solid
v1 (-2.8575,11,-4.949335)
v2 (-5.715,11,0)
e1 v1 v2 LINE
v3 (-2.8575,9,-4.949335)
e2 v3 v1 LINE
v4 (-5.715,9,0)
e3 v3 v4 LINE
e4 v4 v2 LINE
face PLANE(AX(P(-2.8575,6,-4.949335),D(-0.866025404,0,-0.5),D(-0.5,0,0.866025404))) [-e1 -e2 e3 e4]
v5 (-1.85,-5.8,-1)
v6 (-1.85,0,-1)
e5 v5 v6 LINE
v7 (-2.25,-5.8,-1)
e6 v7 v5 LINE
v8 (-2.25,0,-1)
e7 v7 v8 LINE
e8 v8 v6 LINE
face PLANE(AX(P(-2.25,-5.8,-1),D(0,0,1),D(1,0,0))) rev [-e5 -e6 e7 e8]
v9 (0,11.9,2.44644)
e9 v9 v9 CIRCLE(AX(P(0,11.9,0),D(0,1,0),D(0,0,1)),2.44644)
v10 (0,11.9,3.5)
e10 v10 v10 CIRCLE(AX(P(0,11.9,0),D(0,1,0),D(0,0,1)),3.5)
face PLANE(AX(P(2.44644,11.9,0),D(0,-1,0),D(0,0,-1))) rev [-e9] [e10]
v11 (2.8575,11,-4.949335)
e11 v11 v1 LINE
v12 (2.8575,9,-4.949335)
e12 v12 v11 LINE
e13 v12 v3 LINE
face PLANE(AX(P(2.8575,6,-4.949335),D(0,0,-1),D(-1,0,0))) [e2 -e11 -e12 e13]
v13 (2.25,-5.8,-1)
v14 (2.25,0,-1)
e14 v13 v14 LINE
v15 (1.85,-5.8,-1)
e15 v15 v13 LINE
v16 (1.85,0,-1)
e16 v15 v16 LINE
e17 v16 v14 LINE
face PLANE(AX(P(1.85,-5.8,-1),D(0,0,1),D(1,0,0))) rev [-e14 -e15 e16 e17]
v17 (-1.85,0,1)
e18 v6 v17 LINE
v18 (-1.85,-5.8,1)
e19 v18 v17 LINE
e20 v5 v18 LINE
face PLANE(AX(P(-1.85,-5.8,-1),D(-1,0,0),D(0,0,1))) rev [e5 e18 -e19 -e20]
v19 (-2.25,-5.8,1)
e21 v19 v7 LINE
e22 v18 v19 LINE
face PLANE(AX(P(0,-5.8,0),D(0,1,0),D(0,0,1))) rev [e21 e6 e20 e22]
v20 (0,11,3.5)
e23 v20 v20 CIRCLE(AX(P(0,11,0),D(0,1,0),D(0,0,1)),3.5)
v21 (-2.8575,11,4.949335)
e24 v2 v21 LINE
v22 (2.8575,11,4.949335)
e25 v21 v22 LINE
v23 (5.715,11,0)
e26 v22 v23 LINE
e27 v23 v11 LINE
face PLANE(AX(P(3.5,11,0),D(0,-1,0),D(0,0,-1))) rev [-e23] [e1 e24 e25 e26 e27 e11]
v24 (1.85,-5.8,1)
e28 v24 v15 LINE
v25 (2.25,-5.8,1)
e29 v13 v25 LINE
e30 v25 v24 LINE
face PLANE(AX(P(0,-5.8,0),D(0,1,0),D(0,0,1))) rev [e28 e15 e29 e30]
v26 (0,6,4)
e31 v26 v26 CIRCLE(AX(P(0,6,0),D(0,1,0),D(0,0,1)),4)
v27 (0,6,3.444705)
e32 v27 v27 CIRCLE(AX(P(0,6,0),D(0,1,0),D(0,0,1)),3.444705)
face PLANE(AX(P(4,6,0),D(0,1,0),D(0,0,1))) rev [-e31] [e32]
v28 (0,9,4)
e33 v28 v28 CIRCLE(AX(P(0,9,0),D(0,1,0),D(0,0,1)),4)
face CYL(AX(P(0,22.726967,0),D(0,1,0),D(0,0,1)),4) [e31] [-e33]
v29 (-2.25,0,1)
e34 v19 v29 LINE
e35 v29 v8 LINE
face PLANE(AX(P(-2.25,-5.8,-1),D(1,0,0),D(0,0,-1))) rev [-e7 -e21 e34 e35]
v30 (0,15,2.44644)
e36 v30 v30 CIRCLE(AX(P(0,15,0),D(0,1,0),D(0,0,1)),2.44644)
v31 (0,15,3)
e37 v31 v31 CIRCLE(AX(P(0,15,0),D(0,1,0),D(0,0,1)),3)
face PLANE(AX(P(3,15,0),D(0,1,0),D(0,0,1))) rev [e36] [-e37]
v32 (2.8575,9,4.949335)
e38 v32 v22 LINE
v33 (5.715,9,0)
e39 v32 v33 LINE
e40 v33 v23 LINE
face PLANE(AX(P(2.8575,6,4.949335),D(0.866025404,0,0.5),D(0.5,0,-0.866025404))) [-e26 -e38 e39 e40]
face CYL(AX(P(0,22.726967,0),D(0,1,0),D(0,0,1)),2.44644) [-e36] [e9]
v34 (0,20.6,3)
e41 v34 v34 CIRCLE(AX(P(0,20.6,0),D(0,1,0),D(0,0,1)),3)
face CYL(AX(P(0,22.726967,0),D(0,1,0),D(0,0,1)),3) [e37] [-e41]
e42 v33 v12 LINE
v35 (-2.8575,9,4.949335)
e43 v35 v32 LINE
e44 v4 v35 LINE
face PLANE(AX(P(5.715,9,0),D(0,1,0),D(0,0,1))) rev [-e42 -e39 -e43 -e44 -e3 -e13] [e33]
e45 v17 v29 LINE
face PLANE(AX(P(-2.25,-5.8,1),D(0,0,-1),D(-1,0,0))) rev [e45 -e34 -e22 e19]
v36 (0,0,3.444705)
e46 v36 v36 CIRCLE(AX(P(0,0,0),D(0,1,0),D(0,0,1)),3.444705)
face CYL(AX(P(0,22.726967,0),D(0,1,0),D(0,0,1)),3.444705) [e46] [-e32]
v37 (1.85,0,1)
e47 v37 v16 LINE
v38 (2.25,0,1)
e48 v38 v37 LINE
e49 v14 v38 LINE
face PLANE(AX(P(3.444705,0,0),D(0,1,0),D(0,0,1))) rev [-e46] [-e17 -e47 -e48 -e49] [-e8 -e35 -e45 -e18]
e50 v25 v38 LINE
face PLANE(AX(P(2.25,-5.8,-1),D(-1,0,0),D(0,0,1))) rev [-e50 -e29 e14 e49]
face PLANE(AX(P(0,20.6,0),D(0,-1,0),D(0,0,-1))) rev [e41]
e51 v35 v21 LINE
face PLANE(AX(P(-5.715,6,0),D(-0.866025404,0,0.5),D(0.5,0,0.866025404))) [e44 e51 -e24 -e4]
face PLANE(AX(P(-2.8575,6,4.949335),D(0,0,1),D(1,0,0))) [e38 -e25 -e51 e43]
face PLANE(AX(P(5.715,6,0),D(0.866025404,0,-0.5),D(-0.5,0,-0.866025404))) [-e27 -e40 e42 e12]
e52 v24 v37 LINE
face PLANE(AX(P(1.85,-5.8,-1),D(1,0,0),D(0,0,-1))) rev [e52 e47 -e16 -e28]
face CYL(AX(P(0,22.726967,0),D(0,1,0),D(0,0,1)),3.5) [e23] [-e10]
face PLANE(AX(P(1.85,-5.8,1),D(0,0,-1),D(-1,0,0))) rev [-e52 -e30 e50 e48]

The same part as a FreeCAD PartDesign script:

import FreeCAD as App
import Part
import Sketcher
Q = App.Units.Quantity

doc = App.newDocument("Part")
params = doc.addObject("Spreadsheet::Sheet", "Params")
for row, (alias, value) in enumerate([
    ("sketch1_width", "3 mm"),
    ("sketch1_height", "6 mm"),
    ("sketch1_height2", "2 mm"),
    ("sketch1_height3", "20.6 mm"),
    ("sketch1_height4", "0.9 mm"),
    ("revolution_angle", "360 deg"),
    ("pocket1_length", "5 mm"),
    ("sketch3_height", "2 mm"),
    ("sketch3_width", "0.4 mm"),
    ("pad1_length", "5.8 mm"),
], start=1):
    params.set(f"A{row}", alias)
    params.set(f"B{row}", "=" + value)
    params.setAlias(f"B{row}", alias)

body = doc.addObject("PartDesign::Body", "Body")

sketch1 = doc.addObject("Sketcher::SketchObject", "Sketch")
body.addObject(sketch1)
sketch1.AttachmentSupport = (doc.XY_Plane, [""])
sketch1.MapMode = "FlatFace"
sketch1.addGeometry([
    Part.LineSegment(App.Vector(3, 20.6, 0), App.Vector(0, 20.6, 0)),
    Part.LineSegment(App.Vector(0, 20.6, 0), App.Vector(0, 0, 0)),
    Part.LineSegment(App.Vector(0, 0, 0), App.Vector(3.4, 0, 0)),
    Part.LineSegment(App.Vector(3.4, 0, 0), App.Vector(3.4, 6, 0)),
    Part.LineSegment(App.Vector(3.4, 6, 0), App.Vector(4, 6, 0)),
    Part.LineSegment(App.Vector(4, 6, 0), App.Vector(4, 9, 0)),
    Part.LineSegment(App.Vector(4, 9, 0), App.Vector(5.7, 9, 0)),
    Part.LineSegment(App.Vector(5.7, 9, 0), App.Vector(5.7, 11, 0)),
    Part.LineSegment(App.Vector(5.7, 11, 0), App.Vector(3.5, 11, 0)),
    Part.LineSegment(App.Vector(3.5, 11, 0), App.Vector(3.5, 11.9, 0)),
    Part.LineSegment(App.Vector(3.5, 11.9, 0), App.Vector(2.4, 11.9, 0)),
    Part.LineSegment(App.Vector(2.4, 11.9, 0), App.Vector(2.4, 15, 0)),
    Part.LineSegment(App.Vector(2.4, 15, 0), App.Vector(3, 15, 0)),
    Part.LineSegment(App.Vector(3, 15, 0), App.Vector(3, 20.6, 0)),
], False)
sketch1.addConstraint([
    Sketcher.Constraint("Coincident", 0, 2, 1, 1),
    Sketcher.Constraint("Coincident", 1, 2, 2, 1),
    Sketcher.Constraint("Coincident", 2, 2, 3, 1),
    Sketcher.Constraint("Coincident", 3, 2, 4, 1),
    Sketcher.Constraint("Coincident", 4, 2, 5, 1),
    Sketcher.Constraint("Coincident", 5, 2, 6, 1),
    Sketcher.Constraint("Coincident", 6, 2, 7, 1),
    Sketcher.Constraint("Coincident", 7, 2, 8, 1),
    Sketcher.Constraint("Coincident", 8, 2, 9, 1),
    Sketcher.Constraint("Coincident", 9, 2, 10, 1),
    Sketcher.Constraint("Coincident", 10, 2, 11, 1),
    Sketcher.Constraint("Coincident", 11, 2, 12, 1),
    Sketcher.Constraint("Coincident", 12, 2, 13, 1),
    Sketcher.Constraint("Coincident", 13, 2, 0, 1),
    Sketcher.Constraint("Horizontal", 0),
    Sketcher.Constraint("Vertical", 1),
    Sketcher.Constraint("Horizontal", 2),
    Sketcher.Constraint("Vertical", 3),
    Sketcher.Constraint("Horizontal", 4),
    Sketcher.Constraint("Vertical", 5),
    Sketcher.Constraint("Horizontal", 6),
    Sketcher.Constraint("Vertical", 7),
    Sketcher.Constraint("Horizontal", 8),
    Sketcher.Constraint("Vertical", 9),
    Sketcher.Constraint("Horizontal", 10),
    Sketcher.Constraint("Vertical", 11),
    Sketcher.Constraint("Horizontal", 12),
    Sketcher.Constraint("Vertical", 13),
    Sketcher.Constraint("Coincident", 1, 2, -1, 1),
    Sketcher.Constraint("Equal", 0, 5),
    Sketcher.Constraint("DistanceX", 0, 2, 0, 1, Q("3 mm")),
    Sketcher.Constraint("DistanceY", 3, 1, 3, 2, Q("6 mm")),
    Sketcher.Constraint("DistanceY", 7, 1, 7, 2, Q("2 mm")),
    Sketcher.Constraint("DistanceY", 1, 2, 1, 1, Q("20.6 mm")),
    Sketcher.Constraint("DistanceY", 9, 1, 9, 2, Q("0.9 mm")),
    Sketcher.Constraint("DistanceY", 11, 1, 11, 2, Q("3.1 mm")),
    Sketcher.Constraint("DistanceX", -1, 1, 4, 2, Q("4 mm")),
    Sketcher.Constraint("DistanceX", -1, 1, 8, 2, Q("3.5 mm")),
    Sketcher.Constraint("DistanceX", 6, 1, 6, 2, Q("1.715 mm")),
    Sketcher.Constraint("DistanceX", 10, 2, 10, 1, Q("1.05356 mm")),
    Sketcher.Constraint("DistanceX", 2, 1, 2, 2, Q("3.444705 mm")),
])
sketch1.setExpression("Constraints[30]", "Params.sketch1_width")
sketch1.setExpression("Constraints[31]", "Params.sketch1_height")
sketch1.setExpression("Constraints[32]", "Params.sketch1_height2")
sketch1.setExpression("Constraints[33]", "Params.sketch1_height3")
sketch1.setExpression("Constraints[34]", "Params.sketch1_height4")
revolution = doc.addObject("PartDesign::Revolution", "Revolution")
body.addObject(revolution)
revolution.Profile = sketch1
revolution.ReferenceAxis = (sketch1, ["V_Axis"])
revolution.setExpression("Angle", "Params.revolution_angle")

sketch2 = doc.addObject("Sketcher::SketchObject", "Sketch001")
body.addObject(sketch2)
sketch2.AttachmentSupport = (doc.XZ_Plane, [""])
sketch2.MapMode = "FlatFace"
sketch2.AttachmentOffset = App.Placement(App.Vector(0, 0, -11), App.Rotation())
sketch2.addGeometry([
    Part.Circle(App.Vector(0, 0, 0), App.Vector(0, 0, 1), 7),
    Part.LineSegment(App.Vector(3, -5, 0), App.Vector(6, 0, 0)),
    Part.LineSegment(App.Vector(6, 0, 0), App.Vector(3, 5, 0)),
    Part.LineSegment(App.Vector(3, 5, 0), App.Vector(-3, 5, 0)),
    Part.LineSegment(App.Vector(-3, 5, 0), App.Vector(-6, 0, 0)),
    Part.LineSegment(App.Vector(-6, 0, 0), App.Vector(-3, -5, 0)),
    Part.LineSegment(App.Vector(-3, -5, 0), App.Vector(3, -5, 0)),
], False)
sketch2.addConstraint([
    Sketcher.Constraint("Coincident", 1, 2, 2, 1),
    Sketcher.Constraint("Coincident", 2, 2, 3, 1),
    Sketcher.Constraint("Coincident", 3, 2, 4, 1),
    Sketcher.Constraint("Coincident", 4, 2, 5, 1),
    Sketcher.Constraint("Coincident", 5, 2, 6, 1),
    Sketcher.Constraint("Coincident", 6, 2, 1, 1),
    Sketcher.Constraint("Horizontal", 3),
    Sketcher.Constraint("Horizontal", 6),
    Sketcher.Constraint("Coincident", 0, 3, -1, 1),
    Sketcher.Constraint("Symmetric", 1, 2, 4, 2, -1, 1),
    Sketcher.Constraint("Symmetric", 2, 2, 5, 2, -1, 1),
    Sketcher.Constraint("PointOnObject", 1, 2, -1),
    Sketcher.Constraint("Parallel", 1, 4),
    Sketcher.Constraint("Vertical", 3, 2, 5, 2),
    Sketcher.Constraint("Angle", 1, Q("60 deg")),
    Sketcher.Constraint("Diameter", 0, Q("13.141729 mm")),
    Sketcher.Constraint("DistanceX", 3, 2, 3, 1, Q("5.715 mm")),
    Sketcher.Constraint("DistanceX", 4, 2, 1, 2, Q("11.43 mm")),
])
pocket1 = doc.addObject("PartDesign::Pocket", "Pocket")
body.addObject(pocket1)
pocket1.Profile = sketch2
pocket1.setExpression("Length", "Params.pocket1_length")
pocket1.Reversed = True

sketch3 = doc.addObject("Sketcher::SketchObject", "Sketch002")
body.addObject(sketch3)
sketch3.AttachmentSupport = (doc.XZ_Plane, [""])
sketch3.MapMode = "FlatFace"
sketch3.addGeometry([
    Part.LineSegment(App.Vector(-2.25, 1, 0), App.Vector(-2.25, -1, 0)),
    Part.LineSegment(App.Vector(-2.25, -1, 0), App.Vector(-1.85, -1, 0)),
    Part.LineSegment(App.Vector(-1.85, -1, 0), App.Vector(-1.85, 1, 0)),
    Part.LineSegment(App.Vector(-1.85, 1, 0), App.Vector(-2.25, 1, 0)),
    Part.LineSegment(App.Vector(1.85, 1, 0), App.Vector(1.85, -1, 0)),
    Part.LineSegment(App.Vector(1.85, -1, 0), App.Vector(2.25, -1, 0)),
    Part.LineSegment(App.Vector(2.25, -1, 0), App.Vector(2.25, 1, 0)),
    Part.LineSegment(App.Vector(2.25, 1, 0), App.Vector(1.85, 1, 0)),
], False)
sketch3.addConstraint([
    Sketcher.Constraint("Coincident", 0, 2, 1, 1),
    Sketcher.Constraint("Coincident", 1, 2, 2, 1),
    Sketcher.Constraint("Coincident", 2, 2, 3, 1),
    Sketcher.Constraint("Coincident", 3, 2, 0, 1),
    Sketcher.Constraint("Coincident", 4, 2, 5, 1),
    Sketcher.Constraint("Coincident", 5, 2, 6, 1),
    Sketcher.Constraint("Coincident", 6, 2, 7, 1),
    Sketcher.Constraint("Coincident", 7, 2, 4, 1),
    Sketcher.Constraint("Vertical", 0),
    Sketcher.Constraint("Horizontal", 1),
    Sketcher.Constraint("Vertical", 2),
    Sketcher.Constraint("Horizontal", 3),
    Sketcher.Constraint("Vertical", 4),
    Sketcher.Constraint("Horizontal", 5),
    Sketcher.Constraint("Vertical", 6),
    Sketcher.Constraint("Horizontal", 7),
    Sketcher.Constraint("Symmetric", 2, 2, 4, 2, -1, 1),
    Sketcher.Constraint("Symmetric", 0, 2, 6, 2, -1, 1),
    Sketcher.Constraint("Horizontal", 1, 2, 4, 2),
    Sketcher.Constraint("DistanceY", 0, 2, 0, 1, Q("2 mm")),
    Sketcher.Constraint("DistanceX", 1, 1, 1, 2, Q("0.4 mm")),
    Sketcher.Constraint("DistanceX", 1, 2, 4, 2, Q("3.7 mm")),
])
sketch3.setExpression("Constraints[19]", "Params.sketch3_height")
sketch3.setExpression("Constraints[20]", "Params.sketch3_width")
pad1 = doc.addObject("PartDesign::Pad", "Pad")
body.addObject(pad1)
pad1.Profile = sketch3
pad1.setExpression("Length", "Params.pad1_length")

doc.recompute()
